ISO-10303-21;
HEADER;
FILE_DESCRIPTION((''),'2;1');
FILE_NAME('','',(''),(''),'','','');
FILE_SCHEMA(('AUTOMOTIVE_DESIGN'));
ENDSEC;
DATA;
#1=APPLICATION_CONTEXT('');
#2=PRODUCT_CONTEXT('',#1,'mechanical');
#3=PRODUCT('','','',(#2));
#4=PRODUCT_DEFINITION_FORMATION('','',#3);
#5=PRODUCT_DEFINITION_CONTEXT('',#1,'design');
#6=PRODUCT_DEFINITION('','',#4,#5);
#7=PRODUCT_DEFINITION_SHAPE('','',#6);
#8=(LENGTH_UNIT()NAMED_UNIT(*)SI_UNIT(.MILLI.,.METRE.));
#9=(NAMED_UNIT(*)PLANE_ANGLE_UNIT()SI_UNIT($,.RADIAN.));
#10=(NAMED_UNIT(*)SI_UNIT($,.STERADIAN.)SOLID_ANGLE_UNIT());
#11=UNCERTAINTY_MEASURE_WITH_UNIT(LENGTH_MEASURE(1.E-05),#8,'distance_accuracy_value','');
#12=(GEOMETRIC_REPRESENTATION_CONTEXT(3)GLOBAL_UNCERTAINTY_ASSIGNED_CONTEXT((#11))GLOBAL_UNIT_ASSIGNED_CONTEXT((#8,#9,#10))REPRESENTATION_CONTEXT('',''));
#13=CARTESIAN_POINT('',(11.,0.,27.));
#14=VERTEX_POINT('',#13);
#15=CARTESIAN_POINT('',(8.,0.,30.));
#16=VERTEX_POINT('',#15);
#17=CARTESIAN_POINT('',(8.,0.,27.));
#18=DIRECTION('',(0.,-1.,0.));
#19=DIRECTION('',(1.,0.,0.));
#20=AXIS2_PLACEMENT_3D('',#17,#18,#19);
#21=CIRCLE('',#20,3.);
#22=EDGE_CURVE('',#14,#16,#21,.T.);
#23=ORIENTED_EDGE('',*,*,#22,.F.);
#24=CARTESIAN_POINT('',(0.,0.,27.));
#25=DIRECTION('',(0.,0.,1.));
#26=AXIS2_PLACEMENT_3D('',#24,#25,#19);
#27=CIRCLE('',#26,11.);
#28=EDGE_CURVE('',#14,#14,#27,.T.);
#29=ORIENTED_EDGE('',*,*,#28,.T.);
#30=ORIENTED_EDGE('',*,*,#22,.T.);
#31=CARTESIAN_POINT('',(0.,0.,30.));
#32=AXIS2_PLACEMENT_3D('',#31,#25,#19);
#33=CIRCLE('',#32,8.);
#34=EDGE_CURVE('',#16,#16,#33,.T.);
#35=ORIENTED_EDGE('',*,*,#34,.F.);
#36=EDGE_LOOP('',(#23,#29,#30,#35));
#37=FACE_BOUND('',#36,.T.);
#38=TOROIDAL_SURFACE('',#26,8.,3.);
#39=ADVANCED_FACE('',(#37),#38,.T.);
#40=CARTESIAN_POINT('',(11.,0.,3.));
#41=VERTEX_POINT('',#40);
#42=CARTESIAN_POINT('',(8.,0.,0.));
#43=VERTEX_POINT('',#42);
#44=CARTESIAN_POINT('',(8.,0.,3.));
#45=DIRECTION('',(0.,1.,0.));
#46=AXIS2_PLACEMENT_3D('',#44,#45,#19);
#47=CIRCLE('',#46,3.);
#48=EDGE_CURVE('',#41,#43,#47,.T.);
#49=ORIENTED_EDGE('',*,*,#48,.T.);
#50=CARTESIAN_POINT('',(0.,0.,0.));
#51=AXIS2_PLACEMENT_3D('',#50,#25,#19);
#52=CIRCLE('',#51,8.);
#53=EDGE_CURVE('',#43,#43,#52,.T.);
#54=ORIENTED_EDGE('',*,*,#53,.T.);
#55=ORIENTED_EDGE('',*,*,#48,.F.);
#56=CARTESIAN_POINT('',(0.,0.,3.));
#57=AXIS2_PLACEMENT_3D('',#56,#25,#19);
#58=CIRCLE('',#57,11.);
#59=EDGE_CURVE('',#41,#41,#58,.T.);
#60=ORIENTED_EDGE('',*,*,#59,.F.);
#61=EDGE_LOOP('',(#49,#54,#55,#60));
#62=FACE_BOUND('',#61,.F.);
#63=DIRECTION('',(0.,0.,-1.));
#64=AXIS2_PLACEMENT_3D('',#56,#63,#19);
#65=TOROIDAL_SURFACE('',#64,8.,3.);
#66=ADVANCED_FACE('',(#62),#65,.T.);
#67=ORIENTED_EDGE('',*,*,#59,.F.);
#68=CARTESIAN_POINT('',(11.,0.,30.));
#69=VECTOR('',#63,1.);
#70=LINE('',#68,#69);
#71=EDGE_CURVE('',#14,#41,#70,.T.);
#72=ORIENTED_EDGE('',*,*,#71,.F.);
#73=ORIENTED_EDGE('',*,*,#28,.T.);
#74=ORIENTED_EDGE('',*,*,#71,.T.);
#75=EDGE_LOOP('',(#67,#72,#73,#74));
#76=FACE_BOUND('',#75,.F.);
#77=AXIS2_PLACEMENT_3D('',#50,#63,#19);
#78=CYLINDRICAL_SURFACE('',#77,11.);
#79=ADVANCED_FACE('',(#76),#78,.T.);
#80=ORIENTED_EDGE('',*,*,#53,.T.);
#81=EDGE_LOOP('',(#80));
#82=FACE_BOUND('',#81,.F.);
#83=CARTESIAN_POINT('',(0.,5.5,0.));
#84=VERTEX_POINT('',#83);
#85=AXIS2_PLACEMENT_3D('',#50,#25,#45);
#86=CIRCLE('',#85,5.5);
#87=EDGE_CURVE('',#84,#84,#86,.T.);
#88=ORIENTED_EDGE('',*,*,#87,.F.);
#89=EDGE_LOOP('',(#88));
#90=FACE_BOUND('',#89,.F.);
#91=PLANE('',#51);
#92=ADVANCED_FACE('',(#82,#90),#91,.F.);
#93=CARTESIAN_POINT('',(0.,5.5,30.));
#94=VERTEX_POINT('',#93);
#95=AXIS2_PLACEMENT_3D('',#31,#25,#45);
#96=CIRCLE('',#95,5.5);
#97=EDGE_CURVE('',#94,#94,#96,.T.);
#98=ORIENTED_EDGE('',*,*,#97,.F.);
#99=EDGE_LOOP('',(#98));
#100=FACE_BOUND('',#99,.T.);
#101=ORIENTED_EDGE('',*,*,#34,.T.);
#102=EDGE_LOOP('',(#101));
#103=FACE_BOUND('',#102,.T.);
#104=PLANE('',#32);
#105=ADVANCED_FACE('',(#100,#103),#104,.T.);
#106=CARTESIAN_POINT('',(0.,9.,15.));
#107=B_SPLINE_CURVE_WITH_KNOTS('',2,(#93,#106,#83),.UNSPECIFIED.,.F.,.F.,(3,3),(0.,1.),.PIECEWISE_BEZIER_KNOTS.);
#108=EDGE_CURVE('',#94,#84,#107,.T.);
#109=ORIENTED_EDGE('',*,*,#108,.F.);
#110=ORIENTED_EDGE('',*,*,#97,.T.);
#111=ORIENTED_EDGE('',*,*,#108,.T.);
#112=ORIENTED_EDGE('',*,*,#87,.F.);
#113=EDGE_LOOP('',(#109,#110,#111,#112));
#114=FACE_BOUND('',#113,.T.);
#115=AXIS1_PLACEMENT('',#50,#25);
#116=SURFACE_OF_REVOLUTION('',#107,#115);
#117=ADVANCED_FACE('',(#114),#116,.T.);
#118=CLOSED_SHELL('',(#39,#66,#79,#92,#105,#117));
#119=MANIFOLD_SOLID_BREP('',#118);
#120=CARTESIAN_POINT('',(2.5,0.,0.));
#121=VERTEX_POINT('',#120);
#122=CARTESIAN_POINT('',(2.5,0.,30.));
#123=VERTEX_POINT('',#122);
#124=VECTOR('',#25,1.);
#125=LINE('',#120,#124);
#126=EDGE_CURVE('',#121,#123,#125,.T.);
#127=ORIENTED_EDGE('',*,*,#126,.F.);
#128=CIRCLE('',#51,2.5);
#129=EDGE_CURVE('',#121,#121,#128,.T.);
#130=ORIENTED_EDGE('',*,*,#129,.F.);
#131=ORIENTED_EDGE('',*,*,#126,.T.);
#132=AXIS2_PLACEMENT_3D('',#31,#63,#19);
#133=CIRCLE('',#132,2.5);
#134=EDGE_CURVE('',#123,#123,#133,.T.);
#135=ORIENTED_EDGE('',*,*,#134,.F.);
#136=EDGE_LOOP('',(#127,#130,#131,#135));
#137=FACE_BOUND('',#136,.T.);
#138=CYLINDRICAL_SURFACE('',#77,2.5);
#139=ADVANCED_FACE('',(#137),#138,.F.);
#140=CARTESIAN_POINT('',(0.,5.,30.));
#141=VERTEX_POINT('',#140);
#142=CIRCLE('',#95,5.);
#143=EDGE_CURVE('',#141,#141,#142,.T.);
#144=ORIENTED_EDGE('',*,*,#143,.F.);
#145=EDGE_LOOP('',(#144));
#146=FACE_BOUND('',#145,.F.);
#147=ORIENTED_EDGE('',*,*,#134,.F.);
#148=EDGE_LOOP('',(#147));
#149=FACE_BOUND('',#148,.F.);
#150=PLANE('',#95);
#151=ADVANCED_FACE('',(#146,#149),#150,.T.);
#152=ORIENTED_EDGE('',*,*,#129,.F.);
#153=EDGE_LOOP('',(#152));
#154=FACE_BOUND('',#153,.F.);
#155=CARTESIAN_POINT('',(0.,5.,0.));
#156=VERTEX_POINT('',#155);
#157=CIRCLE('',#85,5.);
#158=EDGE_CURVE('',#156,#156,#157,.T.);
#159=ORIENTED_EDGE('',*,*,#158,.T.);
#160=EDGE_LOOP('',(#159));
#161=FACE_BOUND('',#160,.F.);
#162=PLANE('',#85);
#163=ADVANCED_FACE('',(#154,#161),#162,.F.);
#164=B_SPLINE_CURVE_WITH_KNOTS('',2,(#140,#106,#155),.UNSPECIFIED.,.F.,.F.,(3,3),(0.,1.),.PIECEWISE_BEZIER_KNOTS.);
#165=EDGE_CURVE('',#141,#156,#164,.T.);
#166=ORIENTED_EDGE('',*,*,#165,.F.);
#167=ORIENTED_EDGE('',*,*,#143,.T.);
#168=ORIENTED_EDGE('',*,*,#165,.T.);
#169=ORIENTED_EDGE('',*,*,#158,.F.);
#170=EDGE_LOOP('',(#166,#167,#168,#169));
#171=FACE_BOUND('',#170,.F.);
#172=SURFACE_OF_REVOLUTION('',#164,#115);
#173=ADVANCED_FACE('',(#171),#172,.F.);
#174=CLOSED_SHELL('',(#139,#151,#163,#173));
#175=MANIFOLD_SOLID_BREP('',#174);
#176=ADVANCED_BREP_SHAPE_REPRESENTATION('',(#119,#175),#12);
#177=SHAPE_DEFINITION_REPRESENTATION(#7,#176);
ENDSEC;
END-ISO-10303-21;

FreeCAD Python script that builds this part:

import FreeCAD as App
import Part
import Sketcher
from FreeCAD import Vector
Q = App.Units.Quantity


def edges_at(feature, points):
    """Names of the edges that pass closest to the given points."""
    edges = feature.Shape.Edges
    near = lambda p: min(range(len(edges)), key=lambda i: edges[i].distToShape(Part.Vertex(*p))[0])
    return sorted({f"Edge{near(p) + 1}" for p in points})

doc = App.newDocument("Part")
body = doc.addObject("PartDesign::Body", "Body")
body.AllowCompound = True

# Sketch on XY plane
sketch1 = doc.addObject("Sketcher::SketchObject", "Sketch")
body.addObject(sketch1)
sketch1.AttachmentSupport = (doc.XY_Plane, [""])
sketch1.MapMode = "FlatFace"
sketch1.addGeometry(Part.Circle(Vector(0, 0, 0), Vector(0, 0, 1), 11), False)
sketch1.addConstraint([
    Sketcher.Constraint("Coincident", 0, 3, -1, 1),
    Sketcher.Constraint("Diameter", 0, Q("22 mm")),
])
pad1 = doc.addObject("PartDesign::Pad", "Pad")
body.addObject(pad1)
pad1.Profile = sketch1
pad1.Length = 0.01

# Sketch on XY plane
sketch2 = doc.addObject("Sketcher::SketchObject", "Sketch001")
body.addObject(sketch2)
sketch2.AttachmentSupport = (doc.XY_Plane, [""])
sketch2.MapMode = "FlatFace"
sketch2.addGeometry(Part.Circle(Vector(0, 0, 0), Vector(0, 0, 1), 11), False)
sketch2.addConstraint([
    Sketcher.Constraint("Coincident", 0, 3, -1, 1),
    Sketcher.Constraint("Diameter", 0, Q("22 mm")),
])

# Sketch on XY plane
sketch3 = doc.addObject("Sketcher::SketchObject", "Sketch002")
body.addObject(sketch3)
sketch3.AttachmentSupport = (doc.XY_Plane, [""])
sketch3.MapMode = "FlatFace"
sketch3.AttachmentOffset = App.Placement(Vector(0, 0, 30), App.Rotation())
sketch3.addGeometry(Part.Circle(Vector(0, 0, 0), Vector(0, 0, 1), 11), False)
sketch3.addConstraint([
    Sketcher.Constraint("Coincident", 0, 3, -1, 1),
    Sketcher.Constraint("Diameter", 0, Q("22 mm")),
])

additiveloft = doc.addObject("PartDesign::AdditiveLoft", "AdditiveLoft")
body.addObject(additiveloft)
additiveloft.Profile = sketch2
additiveloft.Sections = [sketch3]

# Sketch on YZ plane
sketch4 = doc.addObject("Sketcher::SketchObject", "Sketch003")
body.addObject(sketch4)
sketch4.AttachmentSupport = (doc.YZ_Plane, [""])
sketch4.MapMode = "FlatFace"
sketch4.addGeometry([
    Part.LineSegment(Vector(0, 30, 0), Vector(0, 0, 0)),
    Part.LineSegment(Vector(0, 0, 0), Vector(5.5, 0, 0)),
    Part.BSplineCurve([Vector(5.5, 30, 0), Vector(9, 15, 0), Vector(5.5, 0, 0)], [3, 3], [0, 1], False, 2, [1, 1, 1], False),
    Part.LineSegment(Vector(5.5, 30, 0), Vector(0, 30, 0)),
], False)
sketch4.addConstraint([
    Sketcher.Constraint("Block", 2),
    Sketcher.Constraint("Coincident", 0, 2, 1, 1),
    Sketcher.Constraint("Coincident", 1, 2, 2, 2),
    Sketcher.Constraint("Coincident", 2, 1, 3, 1),
    Sketcher.Constraint("Coincident", 3, 2, 0, 1),
    Sketcher.Constraint("Vertical", 0),
    Sketcher.Constraint("Horizontal", 1),
    Sketcher.Constraint("Horizontal", 3),
    Sketcher.Constraint("PointOnObject", 3, 2, -2),
])
groove = doc.addObject("PartDesign::Groove", "Groove")
body.addObject(groove)
groove.Profile = sketch4
groove.ReferenceAxis = (sketch4, ["V_Axis"])
groove.Angle = 360

# Sketch on YZ plane
sketch5 = doc.addObject("Sketcher::SketchObject", "Sketch004")
body.addObject(sketch5)
sketch5.AttachmentSupport = (doc.YZ_Plane, [""])
sketch5.MapMode = "FlatFace"
sketch5.addGeometry([
    Part.LineSegment(Vector(0, 30, 0), Vector(0, 0, 0)),
    Part.LineSegment(Vector(0, 0, 0), Vector(5, 0, 0)),
    Part.BSplineCurve([Vector(5, 30, 0), Vector(9, 15, 0), Vector(5, 0, 0)], [3, 3], [0, 1], False, 2, [1, 1, 1], False),
    Part.LineSegment(Vector(5, 30, 0), Vector(0, 30, 0)),
], False)
sketch5.addConstraint([
    Sketcher.Constraint("Block", 2),
    Sketcher.Constraint("Coincident", 0, 2, 1, 1),
    Sketcher.Constraint("Coincident", 1, 2, 2, 2),
    Sketcher.Constraint("Coincident", 2, 1, 3, 1),
    Sketcher.Constraint("Coincident", 3, 2, 0, 1),
    Sketcher.Constraint("Vertical", 0),
    Sketcher.Constraint("Horizontal", 1),
    Sketcher.Constraint("Horizontal", 3),
    Sketcher.Constraint("PointOnObject", 3, 2, -2),
])
revolution = doc.addObject("PartDesign::Revolution", "Revolution")
body.addObject(revolution)
revolution.Profile = sketch5
revolution.ReferenceAxis = (sketch5, ["V_Axis"])
revolution.Angle = 360

# Sketch on XY plane
sketch6 = doc.addObject("Sketcher::SketchObject", "Sketch005")
body.addObject(sketch6)
sketch6.AttachmentSupport = (doc.XY_Plane, [""])
sketch6.MapMode = "FlatFace"
sketch6.addGeometry(Part.Circle(Vector(0, 0, 0), Vector(0, 0, 1), 2.5), False)
sketch6.addConstraint([
    Sketcher.Constraint("Coincident", 0, 3, -1, 1),
    Sketcher.Constraint("Diameter", 0, Q("5 mm")),
])
pocket1 = doc.addObject("PartDesign::Pocket", "Pocket")
body.addObject(pocket1)
pocket1.Profile = sketch6
pocket1.Length = 50
pocket1.Reversed = True
doc.recompute()

fillet = doc.addObject("PartDesign::Fillet", "Fillet")
body.addObject(fillet)
fillet.Base = (pocket1, edges_at(pocket1, [(-11, 0, 0), (-11, 0, 30)]))
fillet.Radius = 3

doc.recompute()
